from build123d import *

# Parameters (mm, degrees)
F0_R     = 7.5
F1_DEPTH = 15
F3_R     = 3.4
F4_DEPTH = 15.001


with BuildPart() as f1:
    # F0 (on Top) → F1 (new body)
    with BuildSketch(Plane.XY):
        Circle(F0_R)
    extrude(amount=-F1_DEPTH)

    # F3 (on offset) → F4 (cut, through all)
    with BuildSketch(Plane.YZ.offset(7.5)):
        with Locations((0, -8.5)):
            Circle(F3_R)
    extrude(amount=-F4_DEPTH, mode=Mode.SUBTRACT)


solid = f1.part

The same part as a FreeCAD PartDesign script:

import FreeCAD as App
import Part
import Sketcher

V = App.Vector

doc = App.newDocument("Part")
body = doc.addObject("PartDesign::Body", "Body")

# Sketch on XY plane
sketch1 = body.newObject("Sketcher::SketchObject", "Sketch")
sketch1.AttachmentSupport = (doc.getObject("XY_Plane"), [""])
sketch1.MapMode = "FlatFace"
sketch1.addGeometry(Part.Circle(V(0, 0, 0), V(0, 0, 1), 8), False)
sketch1.addConstraint(Sketcher.Constraint("Coincident", 0, 3, -1, 1))
sketch1.addConstraint(Sketcher.Constraint("Diameter", 0, 15.0))
pad1 = body.newObject("PartDesign::Pad", "Pad")
pad1.Profile = sketch1
pad1.Length = 15
pad1.Reversed = True

# Sketch on YZ plane
sketch2 = body.newObject("Sketcher::SketchObject", "Sketch001")
sketch2.AttachmentSupport = (doc.getObject("YZ_Plane"), [""])
sketch2.MapMode = "FlatFace"
sketch2.AttachmentOffset = App.Placement(V(0, 0, 7.5), App.Rotation())
sketch2.addGeometry(Part.Circle(V(0, -8.5, 0), V(0, 0, 1), 3.4), False)
sketch2.addConstraint(Sketcher.Constraint("PointOnObject", 0, 3, -2))
sketch2.addConstraint(Sketcher.Constraint("Diameter", 0, 6.8))
sketch2.addConstraint(Sketcher.Constraint("DistanceY", 0, 3, -1, 1, 8.5))
pocket1 = body.newObject("PartDesign::Pocket", "Pocket")
pocket1.Profile = sketch2
pocket1.Type = "ThroughAll"

doc.recompute()
